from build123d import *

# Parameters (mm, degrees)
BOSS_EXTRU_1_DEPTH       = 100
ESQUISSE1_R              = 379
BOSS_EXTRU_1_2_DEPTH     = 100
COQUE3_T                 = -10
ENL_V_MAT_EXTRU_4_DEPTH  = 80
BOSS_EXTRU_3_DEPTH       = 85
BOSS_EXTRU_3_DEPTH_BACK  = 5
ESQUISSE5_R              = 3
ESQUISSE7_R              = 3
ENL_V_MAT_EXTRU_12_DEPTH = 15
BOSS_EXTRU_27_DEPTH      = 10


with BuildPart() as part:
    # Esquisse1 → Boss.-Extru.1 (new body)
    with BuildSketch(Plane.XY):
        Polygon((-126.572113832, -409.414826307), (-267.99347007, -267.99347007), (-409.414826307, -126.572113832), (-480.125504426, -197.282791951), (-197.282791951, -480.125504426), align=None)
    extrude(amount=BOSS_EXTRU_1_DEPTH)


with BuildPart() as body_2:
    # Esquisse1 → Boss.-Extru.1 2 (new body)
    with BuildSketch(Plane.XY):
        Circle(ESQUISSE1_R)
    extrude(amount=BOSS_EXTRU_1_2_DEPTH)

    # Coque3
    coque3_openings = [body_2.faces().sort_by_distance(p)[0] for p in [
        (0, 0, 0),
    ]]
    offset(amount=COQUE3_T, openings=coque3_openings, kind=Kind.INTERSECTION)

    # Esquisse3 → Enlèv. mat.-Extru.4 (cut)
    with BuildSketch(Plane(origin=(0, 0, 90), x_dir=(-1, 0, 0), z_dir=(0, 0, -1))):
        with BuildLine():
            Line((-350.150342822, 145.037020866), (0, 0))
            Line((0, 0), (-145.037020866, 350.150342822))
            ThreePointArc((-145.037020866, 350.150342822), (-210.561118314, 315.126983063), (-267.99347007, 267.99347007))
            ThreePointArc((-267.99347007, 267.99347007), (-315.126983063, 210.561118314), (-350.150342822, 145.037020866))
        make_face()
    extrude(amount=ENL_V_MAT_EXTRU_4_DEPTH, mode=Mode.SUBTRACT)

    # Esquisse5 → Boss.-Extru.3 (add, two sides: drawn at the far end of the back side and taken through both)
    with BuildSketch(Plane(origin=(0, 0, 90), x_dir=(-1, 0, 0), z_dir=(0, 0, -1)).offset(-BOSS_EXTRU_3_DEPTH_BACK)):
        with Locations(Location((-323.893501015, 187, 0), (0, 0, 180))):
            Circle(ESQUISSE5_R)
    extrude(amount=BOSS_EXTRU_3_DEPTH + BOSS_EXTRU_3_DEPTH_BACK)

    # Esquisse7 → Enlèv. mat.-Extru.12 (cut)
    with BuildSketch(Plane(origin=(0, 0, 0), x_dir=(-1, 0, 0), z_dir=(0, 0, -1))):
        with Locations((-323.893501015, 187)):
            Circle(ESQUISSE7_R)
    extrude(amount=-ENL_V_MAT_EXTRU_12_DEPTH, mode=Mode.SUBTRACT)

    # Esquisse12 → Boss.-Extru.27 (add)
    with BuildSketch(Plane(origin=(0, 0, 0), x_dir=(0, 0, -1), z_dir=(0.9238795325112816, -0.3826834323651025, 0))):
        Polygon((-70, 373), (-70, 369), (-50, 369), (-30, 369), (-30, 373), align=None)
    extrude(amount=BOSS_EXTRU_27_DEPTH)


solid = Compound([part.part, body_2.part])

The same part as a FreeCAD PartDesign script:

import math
import FreeCAD as App
import Part
import Sketcher
Q = App.Units.Quantity


def faces_at(feature, points):
    """Names of the faces that lie closest to the given points."""
    faces = feature.Shape.Faces
    near = lambda p: min(range(len(faces)), key=lambda i: faces[i].distToShape(Part.Vertex(*p))[0])
    return sorted({f"Face{near(p) + 1}" for p in points})


def add_polygon(sketch, points):
    """Adds a closed chain of lines whose ends are joined by coincident constraints."""
    first, n = sketch.GeometryCount, len(points)
    for a, b in zip(points, points[1:] + points[:1]):
        sketch.addGeometry(Part.LineSegment(App.Vector(*a, 0), App.Vector(*b, 0)), False)
    for i in range(n):
        sketch.addConstraint(Sketcher.Constraint("Coincident", first + i, 2, first + (i + 1) % n, 1))

doc = App.newDocument("Part")
params = doc.addObject("Spreadsheet::Sheet", "Params")
for row, (alias, value) in enumerate([
    ("sketch1_length", "200 mm"),
    ("sketch1_length2", "100 mm"),
    ("pad1_length", "100 mm"),
    ("sketch2_diameter", "758 mm"),
    ("pad2_length", "100 mm"),
    ("thickness_wall", "10 mm"),
    ("sketch3_radius", "379 mm"),
    ("pocket1_length", "80 mm"),
    ("sketch4_diameter", "6 mm"),
    ("pad3_length", "85 mm"),
    ("pad3_length2", "5 mm"),
    ("sketch5_diameter", "6 mm"),
    ("pocket2_length", "15 mm"),
    ("sketch6_width", "40 mm"),
    ("sketch6_height", "4 mm"),
    ("pad4_length", "10 mm"),
], start=1):
    params.set(f"A{row}", alias)
    params.set(f"B{row}", "=" + value)
    params.setAlias(f"B{row}", alias)

body = doc.addObject("PartDesign::Body", "Body")

# Sketch on XY plane
sketch1 = body.newObject("Sketcher::SketchObject", "Sketch")
sketch1.AttachmentSupport = (doc.getObject("XY_Plane"), [""])
sketch1.MapMode = "FlatFace"
add_polygon(sketch1, [(-127, -409), (-268, -268), (-409, -127), (-480, -197), (-197, -480)])  # lines 0-4
sketch1.addConstraint(Sketcher.Constraint("Parallel", 0, 1))
sketch1.addConstraint(Sketcher.Constraint("Perpendicular", 1, 2))
sketch1.addConstraint(Sketcher.Constraint("Perpendicular", 2, 3))
sketch1.addConstraint(Sketcher.Constraint("Perpendicular", 3, 4))
sketch1.addConstraint(Sketcher.Constraint("Equal", 0, 1))
sketch1.addConstraint(Sketcher.Constraint("Angle", 0, Q("135 deg")))
sketch1.addConstraint(Sketcher.Constraint("Distance", 0, 200.0))
sketch1.addConstraint(Sketcher.Constraint("Distance", 2, 100.0))
sketch1.addConstraint(Sketcher.Constraint("DistanceX", 0, 2, -1, 1, 267.99347))
sketch1.addConstraint(Sketcher.Constraint("DistanceY", 0, 2, -1, 1, 267.99347))
sketch1.setExpression("Constraints[11]", "Params.sketch1_length")
sketch1.setExpression("Constraints[12]", "Params.sketch1_length2")
pad1 = body.newObject("PartDesign::Pad", "Pad")
pad1.Profile = sketch1
pad1.setExpression("Length", "Params.pad1_length")
body2 = doc.addObject("PartDesign::Body", "Body001")

# Sketch on XY plane
sketch2 = body2.newObject("Sketcher::SketchObject", "Sketch001")
sketch2.AttachmentSupport = (doc.getObject("XY_Plane001"), [""])
sketch2.MapMode = "FlatFace"
sketch2.addGeometry(Part.Circle(App.Vector(0, 0, 0), App.Vector(0, 0, 1), 379), False)
sketch2.addConstraint(Sketcher.Constraint("Coincident", 0, 3, -1, 1))
sketch2.addConstraint(Sketcher.Constraint("Diameter", 0, 758.0))
sketch2.setExpression("Constraints[1]", "Params.sketch2_diameter")
pad2 = body2.newObject("PartDesign::Pad", "Pad001")
pad2.Profile = sketch2
pad2.setExpression("Length", "Params.pad2_length")
doc.recompute()

thickness = body2.newObject("PartDesign::Thickness", "Thickness")
thickness.Base = (pad2, faces_at(pad2, [(0, 0, 0)]))
thickness.setExpression("Value", "Params.thickness_wall")
thickness.Reversed = True
thickness.Join = "Intersection"

# Sketch on XY plane
sketch3 = body2.newObject("Sketcher::SketchObject", "Sketch002")
sketch3.AttachmentSupport = (doc.getObject("XY_Plane001"), [""])
sketch3.MapMode = "FlatFace"
sketch3.AttachmentOffset = App.Placement(App.Vector(0, 0, 90), App.Rotation())
sketch3.addGeometry(Part.LineSegment(App.Vector(350, 145, 0), App.Vector(0, 0, 0)), False)
sketch3.addGeometry(Part.LineSegment(App.Vector(0, 0, 0), App.Vector(145, 350, 0)), False)
sketch3.addGeometry(Part.ArcOfCircle(Part.Circle(App.Vector(0, 0, 0), App.Vector(0, 0, 1), 379), math.radians(45), math.radians(67)), False)
sketch3.addGeometry(Part.ArcOfCircle(Part.Circle(App.Vector(0, 0, 0), App.Vector(0, 0, 1), 379), math.radians(23), math.radians(45)), False)
sketch3.addConstraint(Sketcher.Constraint("Coincident", 0, 2, 1, 1))
sketch3.addConstraint(Sketcher.Constraint("Coincident", 1, 2, 2, 2))
sketch3.addConstraint(Sketcher.Constraint("Tangent", 2, 1, 3, 2))
sketch3.addConstraint(Sketcher.Constraint("Coincident", 3, 1, 0, 1))
sketch3.addConstraint(Sketcher.Constraint("Coincident", 2, 3, -1, 1))
sketch3.addConstraint(Sketcher.Constraint("Coincident", 0, 2, -1, 1))
sketch3.addConstraint(Sketcher.Constraint("Equal", 2, 3))
sketch3.addConstraint(Sketcher.Constraint("Radius", 2, 379.0))
sketch3.addConstraint(Sketcher.Constraint("Angle", 0, Q("-157.5 deg")))
sketch3.addConstraint(Sketcher.Constraint("Angle", 1, Q("67.5 deg")))
sketch3.addConstraint(Sketcher.Constraint("DistanceX", -1, 1, 2, 1, 267.99347))
sketch3.setExpression("Constraints[7]", "Params.sketch3_radius")
pocket1 = body2.newObject("PartDesign::Pocket", "Pocket")
pocket1.Profile = sketch3
pocket1.setExpression("Length", "Params.pocket1_length")

# Sketch on XY plane
sketch4 = body2.newObject("Sketcher::SketchObject", "Sketch003")
sketch4.AttachmentSupport = (doc.getObject("XY_Plane001"), [""])
sketch4.MapMode = "FlatFace"
sketch4.AttachmentOffset = App.Placement(App.Vector(0, 0, 90), App.Rotation())
sketch4.addGeometry(Part.Circle(App.Vector(323.9, 187, 0), App.Vector(0, 0, 1), 3), False)
sketch4.addConstraint(Sketcher.Constraint("Diameter", 0, 6.0))
sketch4.addConstraint(Sketcher.Constraint("DistanceY", -1, 1, 0, 3, 187.0))
sketch4.addConstraint(Sketcher.Constraint("DistanceX", -1, 1, 0, 3, 323.893501))
sketch4.setExpression("Constraints[0]", "Params.sketch4_diameter")
pad3 = body2.newObject("PartDesign::Pad", "Pad002")
pad3.Profile = sketch4
pad3.Type = "TwoLengths"
pad3.setExpression("Length", "Params.pad3_length")
pad3.setExpression("Length2", "Params.pad3_length2")
pad3.Reversed = True

# Sketch on XY plane
sketch5 = body2.newObject("Sketcher::SketchObject", "Sketch004")
sketch5.AttachmentSupport = (doc.getObject("XY_Plane001"), [""])
sketch5.MapMode = "FlatFace"
sketch5.addGeometry(Part.Circle(App.Vector(323.9, 187, 0), App.Vector(0, 0, 1), 3), False)
sketch5.addConstraint(Sketcher.Constraint("Diameter", 0, 6.0))
sketch5.addConstraint(Sketcher.Constraint("DistanceY", -1, 1, 0, 3, 187.0))
sketch5.addConstraint(Sketcher.Constraint("DistanceX", -1, 1, 0, 3, 323.893501))
sketch5.setExpression("Constraints[0]", "Params.sketch5_diameter")
pocket2 = body2.newObject("PartDesign::Pocket", "Pocket001")
pocket2.Profile = sketch5
pocket2.setExpression("Length", "Params.pocket2_length")
pocket2.Reversed = True

# Sketch on an angled plane
sketch6 = body2.newObject("Sketcher::SketchObject", "Sketch005")
sketch6.Placement = App.Placement(App.Vector(0, 0, 0), App.Rotation(App.Vector(0, 0, -1), App.Vector(0.382683432, 0.923879533, 0), App.Vector(0.923879533, -0.382683432, 0), "ZXY"))
add_polygon(sketch6, [(-70, 373), (-70, 369), (-30, 369), (-30, 373)])  # lines 0-3
sketch6.addConstraint(Sketcher.Constraint("Vertical", 0))
sketch6.addConstraint(Sketcher.Constraint("Horizontal", 1))
sketch6.addConstraint(Sketcher.Constraint("Vertical", 2))
sketch6.addConstraint(Sketcher.Constraint("Horizontal", 3))
sketch6.addConstraint(Sketcher.Constraint("DistanceX", 1, 1, 1, 2, 40.0))
sketch6.addConstraint(Sketcher.Constraint("DistanceY", 0, 2, 0, 1, 4.0))
sketch6.addConstraint(Sketcher.Constraint("DistanceX", 0, 2, -1, 1, 70.0))
sketch6.addConstraint(Sketcher.Constraint("DistanceY", -1, 1, 0, 2, 369.0))
sketch6.setExpression("Constraints[8]", "Params.sketch6_width")
sketch6.setExpression("Constraints[9]", "Params.sketch6_height")
pad4 = body2.newObject("PartDesign::Pad", "Pad003")
pad4.Profile = sketch6
pad4.setExpression("Length", "Params.pad4_length")

doc.recompute()
